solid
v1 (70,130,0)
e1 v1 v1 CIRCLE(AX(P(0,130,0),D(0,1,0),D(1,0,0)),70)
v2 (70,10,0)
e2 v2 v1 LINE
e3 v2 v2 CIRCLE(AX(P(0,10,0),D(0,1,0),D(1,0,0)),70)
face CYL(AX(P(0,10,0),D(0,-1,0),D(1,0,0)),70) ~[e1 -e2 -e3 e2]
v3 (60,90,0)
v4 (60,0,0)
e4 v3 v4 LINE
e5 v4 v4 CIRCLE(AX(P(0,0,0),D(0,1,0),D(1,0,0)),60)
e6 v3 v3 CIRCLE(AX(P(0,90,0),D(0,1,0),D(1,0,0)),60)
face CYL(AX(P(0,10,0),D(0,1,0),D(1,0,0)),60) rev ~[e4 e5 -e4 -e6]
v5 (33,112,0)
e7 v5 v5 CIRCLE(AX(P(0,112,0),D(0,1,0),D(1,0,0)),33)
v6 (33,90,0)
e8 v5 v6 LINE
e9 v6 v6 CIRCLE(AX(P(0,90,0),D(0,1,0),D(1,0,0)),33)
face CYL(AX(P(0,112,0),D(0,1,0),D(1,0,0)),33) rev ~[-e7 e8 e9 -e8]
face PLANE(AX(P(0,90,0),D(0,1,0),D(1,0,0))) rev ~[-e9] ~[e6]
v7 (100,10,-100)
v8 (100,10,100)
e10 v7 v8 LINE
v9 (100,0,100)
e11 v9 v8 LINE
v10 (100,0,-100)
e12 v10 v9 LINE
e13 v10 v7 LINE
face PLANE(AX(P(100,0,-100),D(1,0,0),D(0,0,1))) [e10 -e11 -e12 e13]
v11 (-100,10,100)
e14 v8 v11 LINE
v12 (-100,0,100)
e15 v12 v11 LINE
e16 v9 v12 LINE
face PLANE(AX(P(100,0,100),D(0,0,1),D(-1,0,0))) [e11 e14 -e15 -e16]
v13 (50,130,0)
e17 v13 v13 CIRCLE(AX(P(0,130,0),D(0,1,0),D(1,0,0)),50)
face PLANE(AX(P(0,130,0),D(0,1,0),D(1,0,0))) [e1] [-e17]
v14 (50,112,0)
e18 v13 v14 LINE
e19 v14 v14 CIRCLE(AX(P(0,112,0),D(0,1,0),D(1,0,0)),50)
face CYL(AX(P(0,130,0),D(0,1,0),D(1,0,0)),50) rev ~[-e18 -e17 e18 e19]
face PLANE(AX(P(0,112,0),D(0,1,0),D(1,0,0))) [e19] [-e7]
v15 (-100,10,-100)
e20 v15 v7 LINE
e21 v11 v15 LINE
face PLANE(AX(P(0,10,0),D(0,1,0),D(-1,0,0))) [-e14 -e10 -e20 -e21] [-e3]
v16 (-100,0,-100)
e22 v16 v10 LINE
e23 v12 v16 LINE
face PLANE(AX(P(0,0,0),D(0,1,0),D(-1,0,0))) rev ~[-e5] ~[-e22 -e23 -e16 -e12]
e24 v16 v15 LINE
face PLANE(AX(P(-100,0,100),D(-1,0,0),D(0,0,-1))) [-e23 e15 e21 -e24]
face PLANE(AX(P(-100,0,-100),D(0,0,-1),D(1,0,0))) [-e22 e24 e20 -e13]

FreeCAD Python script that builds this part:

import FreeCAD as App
import Part
import Sketcher

V = App.Vector
Q = App.Units.Quantity

doc = App.newDocument("Part")
body = doc.addObject("PartDesign::Body", "Body")

# Sketch on XZ plane
sketch1 = body.newObject("Sketcher::SketchObject", "Sketch")
sketch1.AttachmentSupport = (doc.getObject("XZ_Plane"), [""])
sketch1.MapMode = "FlatFace"
sketch1.addGeometry(Part.LineSegment(V(-100, 100, 0), V(100, 100, 0)), False)
sketch1.addGeometry(Part.LineSegment(V(100, 100, 0), V(100, -100, 0)), False)
sketch1.addGeometry(Part.LineSegment(V(100, -100, 0), V(-100, -100, 0)), False)
sketch1.addGeometry(Part.LineSegment(V(-100, -100, 0), V(-100, 100, 0)), False)
sketch1.addConstraint(Sketcher.Constraint("Coincident", 0, 2, 1, 1))
sketch1.addConstraint(Sketcher.Constraint("Coincident", 1, 2, 2, 1))
sketch1.addConstraint(Sketcher.Constraint("Coincident", 2, 2, 3, 1))
sketch1.addConstraint(Sketcher.Constraint("Coincident", 3, 2, 0, 1))
sketch1.addConstraint(Sketcher.Constraint("Horizontal", 0))
sketch1.addConstraint(Sketcher.Constraint("Vertical", 1))
sketch1.addConstraint(Sketcher.Constraint("Horizontal", 2))
sketch1.addConstraint(Sketcher.Constraint("Vertical", 3))
sketch1.addConstraint(Sketcher.Constraint("Symmetric", 0, 2, 2, 2, -1, 1))
sketch1.addConstraint(Sketcher.Constraint("Equal", 2, 1))
sketch1.addConstraint(Sketcher.Constraint("DistanceX", 0, 1, 0, 2, Q("200 mm")))
pad1 = body.newObject("PartDesign::Pad", "Pad")
pad1.Profile = sketch1
pad1.Length = 10
pad1.Reversed = True

# Sketch on XZ plane
sketch2 = body.newObject("Sketcher::SketchObject", "Sketch001")
sketch2.AttachmentSupport = (doc.getObject("XZ_Plane"), [""])
sketch2.MapMode = "FlatFace"
sketch2.AttachmentOffset = App.Placement(V(0, 0, -10), App.Rotation())
sketch2.addGeometry(Part.Circle(V(0, 0, 0), V(0, 0, 1), 70), False)
sketch2.addGeometry(Part.Circle(V(0, 0, 0), V(0, 0, 1), 60), False)
sketch2.addConstraint(Sketcher.Constraint("Coincident", 0, 3, -1, 1))
sketch2.addConstraint(Sketcher.Constraint("Coincident", 1, 3, -1, 1))
sketch2.addConstraint(Sketcher.Constraint("Diameter", 0, Q("140 mm")))
sketch2.addConstraint(Sketcher.Constraint("Diameter", 1, Q("120 mm")))
pad2 = body.newObject("PartDesign::Pad", "Pad001")
pad2.Profile = sketch2
pad2.Length = 120
pad2.Reversed = True

# Sketch on XZ plane
sketch3 = body.newObject("Sketcher::SketchObject", "Sketch002")
sketch3.AttachmentSupport = (doc.getObject("XZ_Plane"), [""])
sketch3.MapMode = "FlatFace"
sketch3.AttachmentOffset = App.Placement(V(0, 0, -10), App.Rotation())
sketch3.addGeometry(Part.Circle(V(0, 0, 0), V(0, 0, 1), 60), False)
sketch3.addConstraint(Sketcher.Constraint("Coincident", 0, 3, -1, 1))
sketch3.addConstraint(Sketcher.Constraint("Diameter", 0, Q("120 mm")))
pocket1 = body.newObject("PartDesign::Pocket", "Pocket")
pocket1.Profile = sketch3
pocket1.Length = 10
pocket1.Reversed = True

# Sketch on XZ plane
sketch4 = body.newObject("Sketcher::SketchObject", "Sketch003")
sketch4.AttachmentSupport = (doc.getObject("XZ_Plane"), [""])
sketch4.MapMode = "FlatFace"
sketch4.AttachmentOffset = App.Placement(V(0, 0, -130), App.Rotation())
sketch4.addGeometry(Part.Circle(V(0, 0, 0), V(0, 0, 1), 60), False)
sketch4.addConstraint(Sketcher.Constraint("Coincident", 0, 3, -1, 1))
sketch4.addConstraint(Sketcher.Constraint("Diameter", 0, Q("120 mm")))
pad3 = body.newObject("PartDesign::Pad", "Pad002")
pad3.Profile = sketch4
pad3.Length = 40

# Sketch on XZ plane
sketch5 = body.newObject("Sketcher::SketchObject", "Sketch004")
sketch5.AttachmentSupport = (doc.getObject("XZ_Plane"), [""])
sketch5.MapMode = "FlatFace"
sketch5.AttachmentOffset = App.Placement(V(0, 0, -130), App.Rotation())
sketch5.addGeometry(Part.Circle(V(0, 0, 0), V(0, 0, 1), 50), False)
sketch5.addConstraint(Sketcher.Constraint("Coincident", 0, 3, -1, 1))
sketch5.addConstraint(Sketcher.Constraint("Diameter", 0, Q("100 mm")))
pocket2 = body.newObject("PartDesign::Pocket", "Pocket001")
pocket2.Profile = sketch5
pocket2.Length = 18
pocket2.Reversed = True

# Sketch on XZ plane
sketch6 = body.newObject("Sketcher::SketchObject", "Sketch005")
sketch6.AttachmentSupport = (doc.getObject("XZ_Plane"), [""])
sketch6.MapMode = "FlatFace"
sketch6.AttachmentOffset = App.Placement(V(0, 0, -112), App.Rotation())
sketch6.addGeometry(Part.Circle(V(0, 0, 0), V(0, 0, 1), 33), False)
sketch6.addConstraint(Sketcher.Constraint("Coincident", 0, 3, -1, 1))
sketch6.addConstraint(Sketcher.Constraint("Diameter", 0, Q("66 mm")))
pocket3 = body.newObject("PartDesign::Pocket", "Pocket002")
pocket3.Profile = sketch6
pocket3.Length = 22
pocket3.Reversed = True

doc.recompute()
